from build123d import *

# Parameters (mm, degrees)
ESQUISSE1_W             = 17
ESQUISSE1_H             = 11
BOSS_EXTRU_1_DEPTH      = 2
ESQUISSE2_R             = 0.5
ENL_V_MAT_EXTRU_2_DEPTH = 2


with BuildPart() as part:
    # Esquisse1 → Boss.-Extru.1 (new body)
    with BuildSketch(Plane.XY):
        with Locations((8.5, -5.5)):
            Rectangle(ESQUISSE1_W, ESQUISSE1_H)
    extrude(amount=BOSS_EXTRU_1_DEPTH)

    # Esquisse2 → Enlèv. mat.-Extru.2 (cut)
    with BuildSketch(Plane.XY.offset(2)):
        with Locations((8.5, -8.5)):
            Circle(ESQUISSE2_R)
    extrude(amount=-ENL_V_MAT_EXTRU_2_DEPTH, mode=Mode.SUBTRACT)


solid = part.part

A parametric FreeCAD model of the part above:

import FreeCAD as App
import Part
import Sketcher

V = App.Vector

doc = App.newDocument("Part")
body = doc.addObject("PartDesign::Body", "Body")

# Sketch on XY plane
sketch1 = body.newObject("Sketcher::SketchObject", "Sketch")
sketch1.AttachmentSupport = (doc.getObject("XY_Plane"), [""])
sketch1.MapMode = "FlatFace"
sketch1.addGeometry([
    Part.LineSegment(V(0, 0, 0), V(0, -11, 0)),
    Part.LineSegment(V(0, -11, 0), V(17, -11, 0)),
    Part.LineSegment(V(17, -11, 0), V(17, 0, 0)),
    Part.LineSegment(V(17, 0, 0), V(0, 0, 0)),
], False)
sketch1.addConstraint([
    Sketcher.Constraint("Coincident", 0, 2, 1, 1),
    Sketcher.Constraint("Coincident", 1, 2, 2, 1),
    Sketcher.Constraint("Coincident", 2, 2, 3, 1),
    Sketcher.Constraint("Coincident", 3, 2, 0, 1),
    Sketcher.Constraint("Vertical", 0),
    Sketcher.Constraint("Horizontal", 1),
    Sketcher.Constraint("Vertical", 2),
    Sketcher.Constraint("Horizontal", 3),
    Sketcher.Constraint("Coincident", 3, 2, -1, 1),
    Sketcher.Constraint("DistanceX", 1, 1, 1, 2, 17.0),
    Sketcher.Constraint("DistanceY", 0, 2, 0, 1, 11.0),
])
pad1 = body.newObject("PartDesign::Pad", "Pad")
pad1.Profile = sketch1
pad1.Length = 2

# Sketch on XY plane
sketch2 = body.newObject("Sketcher::SketchObject", "Sketch001")
sketch2.AttachmentSupport = (doc.getObject("XY_Plane"), [""])
sketch2.MapMode = "FlatFace"
sketch2.AttachmentOffset = App.Placement(V(0, 0, 2), App.Rotation())
sketch2.addGeometry(Part.Circle(V(8.5, -8.5, 0), V(0, 0, 1), 0.5), False)
sketch2.addConstraint([
    Sketcher.Constraint("Diameter", 0, 1.0),
    Sketcher.Constraint("DistanceX", -1, 1, 0, 3, 8.5),
    Sketcher.Constraint("DistanceY", 0, 3, -1, 1, 8.5),
])
pocket1 = body.newObject("PartDesign::Pocket", "Pocket")
pocket1.Profile = sketch2
pocket1.Length = 2

doc.recompute()
